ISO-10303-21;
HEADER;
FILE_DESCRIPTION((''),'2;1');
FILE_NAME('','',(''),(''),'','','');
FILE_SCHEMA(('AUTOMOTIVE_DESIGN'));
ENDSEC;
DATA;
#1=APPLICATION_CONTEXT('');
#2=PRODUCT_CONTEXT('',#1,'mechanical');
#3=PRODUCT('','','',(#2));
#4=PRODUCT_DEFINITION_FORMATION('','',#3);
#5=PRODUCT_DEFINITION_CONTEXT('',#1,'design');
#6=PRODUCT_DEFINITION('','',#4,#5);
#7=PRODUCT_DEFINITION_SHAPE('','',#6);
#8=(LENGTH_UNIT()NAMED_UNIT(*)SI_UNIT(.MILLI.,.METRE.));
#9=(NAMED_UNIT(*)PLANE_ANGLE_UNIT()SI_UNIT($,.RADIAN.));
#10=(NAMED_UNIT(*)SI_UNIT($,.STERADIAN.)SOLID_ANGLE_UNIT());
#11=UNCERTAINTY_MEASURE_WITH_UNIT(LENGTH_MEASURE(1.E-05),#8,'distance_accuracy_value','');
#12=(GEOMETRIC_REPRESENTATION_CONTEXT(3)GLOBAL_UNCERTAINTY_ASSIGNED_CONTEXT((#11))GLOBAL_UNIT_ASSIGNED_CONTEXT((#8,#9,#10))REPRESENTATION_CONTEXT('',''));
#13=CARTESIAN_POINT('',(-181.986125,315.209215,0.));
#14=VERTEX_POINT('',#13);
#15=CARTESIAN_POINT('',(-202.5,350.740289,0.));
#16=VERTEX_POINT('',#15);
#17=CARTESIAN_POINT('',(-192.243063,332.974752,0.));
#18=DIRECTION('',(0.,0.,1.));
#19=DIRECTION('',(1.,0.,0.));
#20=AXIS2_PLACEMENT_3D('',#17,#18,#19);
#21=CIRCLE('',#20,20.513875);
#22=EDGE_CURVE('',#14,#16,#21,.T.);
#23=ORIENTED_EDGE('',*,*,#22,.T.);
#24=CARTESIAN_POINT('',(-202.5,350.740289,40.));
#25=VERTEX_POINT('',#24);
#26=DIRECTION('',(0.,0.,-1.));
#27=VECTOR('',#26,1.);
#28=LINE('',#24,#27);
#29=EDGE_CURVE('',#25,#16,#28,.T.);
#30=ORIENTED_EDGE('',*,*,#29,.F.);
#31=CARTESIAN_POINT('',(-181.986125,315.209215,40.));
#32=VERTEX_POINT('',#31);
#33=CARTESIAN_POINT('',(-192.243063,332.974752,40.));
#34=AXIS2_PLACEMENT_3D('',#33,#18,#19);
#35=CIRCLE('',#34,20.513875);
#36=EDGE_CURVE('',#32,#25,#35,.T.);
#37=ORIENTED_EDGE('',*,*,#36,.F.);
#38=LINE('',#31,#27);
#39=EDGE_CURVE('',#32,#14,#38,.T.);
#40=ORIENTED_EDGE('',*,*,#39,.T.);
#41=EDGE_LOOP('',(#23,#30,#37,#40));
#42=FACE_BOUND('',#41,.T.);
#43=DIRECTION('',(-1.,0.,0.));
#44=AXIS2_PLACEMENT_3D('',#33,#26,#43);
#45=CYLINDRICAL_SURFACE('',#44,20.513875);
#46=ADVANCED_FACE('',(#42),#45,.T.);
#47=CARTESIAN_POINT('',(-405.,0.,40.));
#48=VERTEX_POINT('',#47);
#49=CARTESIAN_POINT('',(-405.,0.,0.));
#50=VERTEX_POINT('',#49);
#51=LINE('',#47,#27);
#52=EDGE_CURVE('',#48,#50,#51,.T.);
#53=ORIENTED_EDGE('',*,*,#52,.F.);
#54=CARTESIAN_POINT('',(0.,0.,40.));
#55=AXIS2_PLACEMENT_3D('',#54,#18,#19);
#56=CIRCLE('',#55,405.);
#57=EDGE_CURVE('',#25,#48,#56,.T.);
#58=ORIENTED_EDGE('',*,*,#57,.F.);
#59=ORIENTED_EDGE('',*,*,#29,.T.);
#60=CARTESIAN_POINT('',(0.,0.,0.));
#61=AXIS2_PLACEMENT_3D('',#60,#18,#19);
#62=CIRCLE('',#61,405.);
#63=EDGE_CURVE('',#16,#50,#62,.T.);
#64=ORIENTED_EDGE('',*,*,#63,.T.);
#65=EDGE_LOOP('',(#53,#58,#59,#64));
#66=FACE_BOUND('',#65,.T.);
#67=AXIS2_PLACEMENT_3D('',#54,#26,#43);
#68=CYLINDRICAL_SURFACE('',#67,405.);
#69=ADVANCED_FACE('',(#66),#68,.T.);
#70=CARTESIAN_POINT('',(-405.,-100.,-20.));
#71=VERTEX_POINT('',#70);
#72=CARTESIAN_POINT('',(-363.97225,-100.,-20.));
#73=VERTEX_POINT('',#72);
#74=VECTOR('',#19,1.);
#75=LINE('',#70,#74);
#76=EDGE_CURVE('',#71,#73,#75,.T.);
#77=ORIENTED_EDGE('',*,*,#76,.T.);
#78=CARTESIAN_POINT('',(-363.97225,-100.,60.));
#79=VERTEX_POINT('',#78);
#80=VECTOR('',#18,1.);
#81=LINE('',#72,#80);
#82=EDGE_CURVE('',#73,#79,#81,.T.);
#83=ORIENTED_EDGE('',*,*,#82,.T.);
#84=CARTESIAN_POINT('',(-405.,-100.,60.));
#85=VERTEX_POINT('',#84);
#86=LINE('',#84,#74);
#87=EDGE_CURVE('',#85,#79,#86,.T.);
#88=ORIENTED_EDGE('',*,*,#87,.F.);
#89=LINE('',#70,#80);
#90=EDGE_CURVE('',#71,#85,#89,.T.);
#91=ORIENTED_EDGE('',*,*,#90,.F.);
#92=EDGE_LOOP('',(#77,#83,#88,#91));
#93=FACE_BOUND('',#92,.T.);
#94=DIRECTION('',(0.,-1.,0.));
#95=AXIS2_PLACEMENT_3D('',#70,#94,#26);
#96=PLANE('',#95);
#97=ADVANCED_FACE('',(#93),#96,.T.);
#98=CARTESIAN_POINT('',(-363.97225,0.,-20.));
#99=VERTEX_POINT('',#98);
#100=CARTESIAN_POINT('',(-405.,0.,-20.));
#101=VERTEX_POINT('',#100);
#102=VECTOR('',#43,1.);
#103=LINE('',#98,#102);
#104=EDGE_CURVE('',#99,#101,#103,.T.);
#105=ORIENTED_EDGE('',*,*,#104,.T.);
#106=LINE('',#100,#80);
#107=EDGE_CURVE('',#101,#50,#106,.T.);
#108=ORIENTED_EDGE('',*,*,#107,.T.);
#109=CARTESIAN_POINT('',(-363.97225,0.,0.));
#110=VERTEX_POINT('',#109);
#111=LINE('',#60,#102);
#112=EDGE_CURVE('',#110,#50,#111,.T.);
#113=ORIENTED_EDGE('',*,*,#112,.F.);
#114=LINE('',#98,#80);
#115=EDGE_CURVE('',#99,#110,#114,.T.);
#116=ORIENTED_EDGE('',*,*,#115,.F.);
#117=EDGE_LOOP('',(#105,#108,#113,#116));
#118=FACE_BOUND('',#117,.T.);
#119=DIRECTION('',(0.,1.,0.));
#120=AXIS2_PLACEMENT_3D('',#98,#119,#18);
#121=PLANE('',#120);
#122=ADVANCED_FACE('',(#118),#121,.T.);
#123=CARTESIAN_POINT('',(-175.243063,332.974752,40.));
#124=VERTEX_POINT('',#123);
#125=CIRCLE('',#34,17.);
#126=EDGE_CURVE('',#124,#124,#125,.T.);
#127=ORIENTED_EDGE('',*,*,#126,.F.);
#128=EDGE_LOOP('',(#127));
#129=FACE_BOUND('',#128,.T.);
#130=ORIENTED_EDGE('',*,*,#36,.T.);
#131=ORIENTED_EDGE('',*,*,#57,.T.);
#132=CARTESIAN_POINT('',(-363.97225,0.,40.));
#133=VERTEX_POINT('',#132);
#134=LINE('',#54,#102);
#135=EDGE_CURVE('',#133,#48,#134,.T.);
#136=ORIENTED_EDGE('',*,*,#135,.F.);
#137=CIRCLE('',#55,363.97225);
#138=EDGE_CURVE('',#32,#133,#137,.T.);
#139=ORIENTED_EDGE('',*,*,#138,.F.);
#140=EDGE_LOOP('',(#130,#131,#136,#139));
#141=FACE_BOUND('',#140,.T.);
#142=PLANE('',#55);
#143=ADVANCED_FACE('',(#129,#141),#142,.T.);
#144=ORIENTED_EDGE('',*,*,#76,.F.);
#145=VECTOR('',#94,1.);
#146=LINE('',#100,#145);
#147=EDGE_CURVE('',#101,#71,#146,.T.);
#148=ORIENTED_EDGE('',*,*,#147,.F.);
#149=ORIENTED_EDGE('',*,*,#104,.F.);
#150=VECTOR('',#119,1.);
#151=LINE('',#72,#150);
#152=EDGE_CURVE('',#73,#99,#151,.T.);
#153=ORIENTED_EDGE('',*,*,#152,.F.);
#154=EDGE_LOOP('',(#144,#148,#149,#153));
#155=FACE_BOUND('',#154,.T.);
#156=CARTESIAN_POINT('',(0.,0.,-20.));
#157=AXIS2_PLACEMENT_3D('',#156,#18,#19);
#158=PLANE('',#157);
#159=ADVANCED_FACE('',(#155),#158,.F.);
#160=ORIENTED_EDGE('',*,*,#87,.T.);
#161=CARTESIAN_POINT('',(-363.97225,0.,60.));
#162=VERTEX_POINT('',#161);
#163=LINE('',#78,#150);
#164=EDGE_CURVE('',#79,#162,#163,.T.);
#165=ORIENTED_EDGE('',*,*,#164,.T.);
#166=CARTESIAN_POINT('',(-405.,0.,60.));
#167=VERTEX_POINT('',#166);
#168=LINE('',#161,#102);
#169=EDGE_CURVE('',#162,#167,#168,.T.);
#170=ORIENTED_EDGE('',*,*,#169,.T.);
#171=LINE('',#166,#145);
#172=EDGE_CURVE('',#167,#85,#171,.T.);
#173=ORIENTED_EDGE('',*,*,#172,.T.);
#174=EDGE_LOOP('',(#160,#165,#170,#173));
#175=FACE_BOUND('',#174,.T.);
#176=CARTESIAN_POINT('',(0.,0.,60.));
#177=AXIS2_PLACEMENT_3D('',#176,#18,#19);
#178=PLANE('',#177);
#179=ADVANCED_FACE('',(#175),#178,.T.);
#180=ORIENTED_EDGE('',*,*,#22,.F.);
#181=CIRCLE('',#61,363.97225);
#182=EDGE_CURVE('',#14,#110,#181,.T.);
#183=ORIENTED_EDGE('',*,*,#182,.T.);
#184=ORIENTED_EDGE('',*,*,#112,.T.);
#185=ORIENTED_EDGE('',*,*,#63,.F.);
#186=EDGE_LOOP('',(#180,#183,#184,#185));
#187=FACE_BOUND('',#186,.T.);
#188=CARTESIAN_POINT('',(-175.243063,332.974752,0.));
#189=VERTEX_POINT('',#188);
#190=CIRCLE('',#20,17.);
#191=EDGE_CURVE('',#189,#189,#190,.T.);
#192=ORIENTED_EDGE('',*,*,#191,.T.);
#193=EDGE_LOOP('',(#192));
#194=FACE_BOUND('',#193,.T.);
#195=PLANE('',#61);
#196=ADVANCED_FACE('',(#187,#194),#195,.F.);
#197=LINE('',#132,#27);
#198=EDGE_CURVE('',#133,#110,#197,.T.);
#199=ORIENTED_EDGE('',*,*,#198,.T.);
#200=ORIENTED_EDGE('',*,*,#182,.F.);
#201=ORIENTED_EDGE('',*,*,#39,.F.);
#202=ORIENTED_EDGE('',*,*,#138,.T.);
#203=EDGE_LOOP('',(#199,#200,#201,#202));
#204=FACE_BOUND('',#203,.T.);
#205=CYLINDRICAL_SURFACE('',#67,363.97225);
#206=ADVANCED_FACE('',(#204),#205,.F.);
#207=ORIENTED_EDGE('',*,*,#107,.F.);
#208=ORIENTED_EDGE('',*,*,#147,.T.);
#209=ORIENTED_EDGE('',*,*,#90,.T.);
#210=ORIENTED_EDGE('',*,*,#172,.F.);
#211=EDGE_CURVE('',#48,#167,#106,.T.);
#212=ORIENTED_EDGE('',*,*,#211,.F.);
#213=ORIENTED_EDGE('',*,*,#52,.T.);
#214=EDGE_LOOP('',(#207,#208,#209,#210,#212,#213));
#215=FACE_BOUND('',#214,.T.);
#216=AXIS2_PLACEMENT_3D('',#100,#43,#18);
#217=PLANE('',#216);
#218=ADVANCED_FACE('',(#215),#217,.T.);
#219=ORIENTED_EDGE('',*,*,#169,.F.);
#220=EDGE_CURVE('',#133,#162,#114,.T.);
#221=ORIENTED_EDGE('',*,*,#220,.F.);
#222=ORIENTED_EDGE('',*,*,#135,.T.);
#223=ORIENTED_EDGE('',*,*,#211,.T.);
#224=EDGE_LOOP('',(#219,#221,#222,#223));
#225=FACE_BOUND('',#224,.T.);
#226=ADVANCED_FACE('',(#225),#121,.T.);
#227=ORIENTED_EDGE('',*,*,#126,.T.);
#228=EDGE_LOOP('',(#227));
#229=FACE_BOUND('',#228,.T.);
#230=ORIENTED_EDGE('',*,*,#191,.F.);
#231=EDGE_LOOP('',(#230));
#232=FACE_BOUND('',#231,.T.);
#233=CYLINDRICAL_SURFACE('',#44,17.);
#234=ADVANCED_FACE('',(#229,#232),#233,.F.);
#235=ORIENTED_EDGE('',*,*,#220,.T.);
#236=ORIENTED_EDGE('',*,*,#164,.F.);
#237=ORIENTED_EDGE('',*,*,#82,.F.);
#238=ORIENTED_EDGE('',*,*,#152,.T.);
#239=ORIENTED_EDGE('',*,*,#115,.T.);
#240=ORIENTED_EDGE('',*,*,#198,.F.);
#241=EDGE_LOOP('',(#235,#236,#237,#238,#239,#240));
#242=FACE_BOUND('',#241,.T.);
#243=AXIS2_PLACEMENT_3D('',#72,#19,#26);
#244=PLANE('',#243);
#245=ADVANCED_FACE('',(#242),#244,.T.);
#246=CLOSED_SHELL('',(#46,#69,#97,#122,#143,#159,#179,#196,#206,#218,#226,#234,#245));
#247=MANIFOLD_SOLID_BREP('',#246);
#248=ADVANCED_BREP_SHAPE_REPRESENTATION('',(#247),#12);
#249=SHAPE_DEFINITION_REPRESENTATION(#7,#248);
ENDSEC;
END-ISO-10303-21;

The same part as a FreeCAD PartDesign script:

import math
import FreeCAD as App
import Part
import Sketcher

V = App.Vector
Q = App.Units.Quantity


def add_polygon(sketch, points):
    """Adds a closed chain of lines whose ends are joined by coincident constraints."""
    first, n = sketch.GeometryCount, len(points)
    for a, b in zip(points, points[1:] + points[:1]):
        sketch.addGeometry(Part.LineSegment(App.Vector(*a, 0), App.Vector(*b, 0)), False)
    for i in range(n):
        sketch.addConstraint(Sketcher.Constraint("Coincident", first + i, 2, first + (i + 1) % n, 1))

doc = App.newDocument("Part")
body = doc.addObject("PartDesign::Body", "Body")

sketch1 = doc.addObject("Sketcher::SketchObject", "Sketch")
body.addObject(sketch1)
sketch1.AttachmentSupport = (doc.XY_Plane, [""])
sketch1.MapMode = "FlatFace"
sketch1.addGeometry(Part.ArcOfCircle(Part.Circle(V(0, 0, 0), V(0, 0, 1), 364), math.radians(120), math.radians(180)), False)
sketch1.addGeometry(Part.ArcOfCircle(Part.Circle(V(-192, 333, 0), V(0, 0, 1), 21), math.radians(-60), math.radians(120)), False)
sketch1.addGeometry(Part.ArcOfCircle(Part.Circle(V(0, 0, 0), V(0, 0, 1), 405), math.radians(120), math.radians(180)), False)
sketch1.addGeometry(Part.LineSegment(V(-405, 0, 0), V(-364, 0, 0)), False)
sketch1.addGeometry(Part.Circle(V(-192, 333, 0), V(0, 0, 1), 17), False)
sketch1.addConstraint(Sketcher.Constraint("Tangent", 0, 1, 1, 1))
sketch1.addConstraint(Sketcher.Constraint("Tangent", 1, 2, 2, 1))
sketch1.addConstraint(Sketcher.Constraint("Coincident", 2, 2, 3, 1))
sketch1.addConstraint(Sketcher.Constraint("Coincident", 3, 2, 0, 2))
sketch1.addConstraint(Sketcher.Constraint("Horizontal", 3))
sketch1.addConstraint(Sketcher.Constraint("Coincident", 0, 3, -1, 1))
sketch1.addConstraint(Sketcher.Constraint("Coincident", 2, 3, -1, 1))
sketch1.addConstraint(Sketcher.Constraint("Coincident", 4, 3, 1, 3))
sketch1.addConstraint(Sketcher.Constraint("PointOnObject", 3, 2, -1))
sketch1.addConstraint(Sketcher.Constraint("Diameter", 4, Q("34 mm")))
sketch1.addConstraint(Sketcher.Constraint("Radius", 2, Q("405 mm")))
sketch1.addConstraint(Sketcher.Constraint("DistanceX", 1, 2, -1, 1, Q("202.5 mm")))
sketch1.addConstraint(Sketcher.Constraint("Radius", 0, Q("363.97225 mm")))
pad1 = doc.addObject("PartDesign::Pad", "Pad")
body.addObject(pad1)
pad1.Profile = sketch1
pad1.Length = 40

sketch2 = doc.addObject("Sketcher::SketchObject", "Sketch001")
body.addObject(sketch2)
sketch2.AttachmentSupport = (doc.XY_Plane, [""])
sketch2.MapMode = "FlatFace"
add_polygon(sketch2, [(-405, 0), (-405, -100), (-364, -100), (-364, 0)])
sketch2.addConstraint(Sketcher.Constraint("Vertical", 0))
sketch2.addConstraint(Sketcher.Constraint("Horizontal", 1))
sketch2.addConstraint(Sketcher.Constraint("Vertical", 2))
sketch2.addConstraint(Sketcher.Constraint("Horizontal", 3))
sketch2.addConstraint(Sketcher.Constraint("PointOnObject", 2, 2, -1))
sketch2.addConstraint(Sketcher.Constraint("DistanceY", 0, 2, 0, 1, Q("100 mm")))
sketch2.addConstraint(Sketcher.Constraint("DistanceX", 0, 2, -1, 1, Q("405 mm")))
sketch2.addConstraint(Sketcher.Constraint("DistanceX", 1, 1, 1, 2, Q("41.02775 mm")))
pad2 = doc.addObject("PartDesign::Pad", "Pad001")
body.addObject(pad2)
pad2.Profile = sketch2
pad2.Type = "TwoLengths"
pad2.Length = 60
pad2.Length2 = 20

doc.recompute()
